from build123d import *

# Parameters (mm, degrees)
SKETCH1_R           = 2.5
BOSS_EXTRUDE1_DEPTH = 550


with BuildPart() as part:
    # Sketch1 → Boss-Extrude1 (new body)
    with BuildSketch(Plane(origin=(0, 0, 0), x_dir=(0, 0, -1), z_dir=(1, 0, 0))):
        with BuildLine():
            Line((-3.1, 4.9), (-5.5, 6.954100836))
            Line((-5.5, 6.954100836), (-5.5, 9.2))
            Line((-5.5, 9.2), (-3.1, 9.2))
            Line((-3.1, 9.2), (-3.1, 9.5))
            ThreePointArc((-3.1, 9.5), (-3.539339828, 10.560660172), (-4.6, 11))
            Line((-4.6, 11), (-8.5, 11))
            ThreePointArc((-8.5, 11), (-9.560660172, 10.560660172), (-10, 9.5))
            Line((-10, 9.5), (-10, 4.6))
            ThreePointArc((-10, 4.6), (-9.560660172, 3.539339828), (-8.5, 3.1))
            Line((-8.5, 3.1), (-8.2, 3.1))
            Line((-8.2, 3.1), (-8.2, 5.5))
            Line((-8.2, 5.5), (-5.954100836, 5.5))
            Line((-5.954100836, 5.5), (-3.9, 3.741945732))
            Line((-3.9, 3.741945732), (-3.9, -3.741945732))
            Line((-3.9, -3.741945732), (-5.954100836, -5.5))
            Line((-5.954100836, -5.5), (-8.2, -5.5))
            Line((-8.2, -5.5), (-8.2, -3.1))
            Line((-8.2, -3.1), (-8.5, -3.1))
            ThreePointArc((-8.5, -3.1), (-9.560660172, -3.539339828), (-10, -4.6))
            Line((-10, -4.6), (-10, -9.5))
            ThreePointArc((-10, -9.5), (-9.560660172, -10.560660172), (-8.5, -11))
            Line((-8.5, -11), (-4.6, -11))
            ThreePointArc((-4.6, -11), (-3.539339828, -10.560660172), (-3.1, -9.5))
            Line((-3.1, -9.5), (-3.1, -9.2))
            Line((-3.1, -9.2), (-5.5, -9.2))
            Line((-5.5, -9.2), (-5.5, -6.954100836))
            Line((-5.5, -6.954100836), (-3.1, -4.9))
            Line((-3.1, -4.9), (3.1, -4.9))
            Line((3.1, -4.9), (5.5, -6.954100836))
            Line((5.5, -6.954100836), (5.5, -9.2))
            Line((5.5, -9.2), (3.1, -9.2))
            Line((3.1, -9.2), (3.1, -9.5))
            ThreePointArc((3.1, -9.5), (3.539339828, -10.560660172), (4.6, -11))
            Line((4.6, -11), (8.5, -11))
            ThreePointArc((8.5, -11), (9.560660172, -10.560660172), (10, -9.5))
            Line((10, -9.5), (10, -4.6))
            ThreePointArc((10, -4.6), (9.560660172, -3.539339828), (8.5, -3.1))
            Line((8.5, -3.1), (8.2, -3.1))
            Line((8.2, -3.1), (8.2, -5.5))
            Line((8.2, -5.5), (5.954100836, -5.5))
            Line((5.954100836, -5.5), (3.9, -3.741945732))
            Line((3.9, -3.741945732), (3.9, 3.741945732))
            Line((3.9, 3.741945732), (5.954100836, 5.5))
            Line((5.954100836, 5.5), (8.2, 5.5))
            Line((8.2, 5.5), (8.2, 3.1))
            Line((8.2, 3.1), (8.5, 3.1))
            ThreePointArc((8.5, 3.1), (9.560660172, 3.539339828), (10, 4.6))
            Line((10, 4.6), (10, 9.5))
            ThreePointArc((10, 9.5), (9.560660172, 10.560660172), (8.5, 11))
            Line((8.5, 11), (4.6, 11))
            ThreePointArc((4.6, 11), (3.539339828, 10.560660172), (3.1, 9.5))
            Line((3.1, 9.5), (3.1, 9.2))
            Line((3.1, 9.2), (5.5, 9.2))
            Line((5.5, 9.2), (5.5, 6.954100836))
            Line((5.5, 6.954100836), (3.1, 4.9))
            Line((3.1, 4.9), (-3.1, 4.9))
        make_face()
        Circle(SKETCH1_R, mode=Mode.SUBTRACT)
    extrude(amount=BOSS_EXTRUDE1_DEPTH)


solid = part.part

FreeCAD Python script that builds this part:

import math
import FreeCAD as App
import Part
import Sketcher

doc = App.newDocument("Part")
body = doc.addObject("PartDesign::Body", "Body")

# Sketch on YZ plane
sketch1 = body.newObject("Sketcher::SketchObject", "Sketch")
sketch1.AttachmentSupport = (doc.getObject("YZ_Plane"), [""])
sketch1.MapMode = "FlatFace"
sketch1.addGeometry(Part.LineSegment(App.Vector(4.9, 3.1, 0), App.Vector(6.95, 5.5, 0)), False)
sketch1.addGeometry(Part.LineSegment(App.Vector(6.95, 5.5, 0), App.Vector(9.2, 5.5, 0)), False)
sketch1.addGeometry(Part.LineSegment(App.Vector(9.2, 5.5, 0), App.Vector(9.2, 3.1, 0)), False)
sketch1.addGeometry(Part.LineSegment(App.Vector(9.2, 3.1, 0), App.Vector(9.5, 3.1, 0)), False)
sketch1.addGeometry(Part.ArcOfCircle(Part.Circle(App.Vector(9.5, 4.6, 0), App.Vector(0, 0, 1), 1.5), math.radians(-90), math.radians(0)), False)
sketch1.addGeometry(Part.LineSegment(App.Vector(11, 4.6, 0), App.Vector(11, 8.5, 0)), False)
sketch1.addGeometry(Part.ArcOfCircle(Part.Circle(App.Vector(9.5, 8.5, 0), App.Vector(0, 0, 1), 1.5), math.radians(0), math.radians(90)), False)
sketch1.addGeometry(Part.LineSegment(App.Vector(9.5, 10, 0), App.Vector(4.6, 10, 0)), False)
sketch1.addGeometry(Part.ArcOfCircle(Part.Circle(App.Vector(4.6, 8.5, 0), App.Vector(0, 0, 1), 1.5), math.radians(90), math.radians(180)), False)
sketch1.addGeometry(Part.LineSegment(App.Vector(3.1, 8.5, 0), App.Vector(3.1, 8.2, 0)), False)
sketch1.addGeometry(Part.LineSegment(App.Vector(3.1, 8.2, 0), App.Vector(5.5, 8.2, 0)), False)
sketch1.addGeometry(Part.LineSegment(App.Vector(5.5, 8.2, 0), App.Vector(5.5, 5.95, 0)), False)
sketch1.addGeometry(Part.LineSegment(App.Vector(5.5, 5.95, 0), App.Vector(3.74, 3.9, 0)), False)
sketch1.addGeometry(Part.LineSegment(App.Vector(3.74, 3.9, 0), App.Vector(-3.74, 3.9, 0)), False)
sketch1.addGeometry(Part.LineSegment(App.Vector(-3.74, 3.9, 0), App.Vector(-5.5, 5.95, 0)), False)
sketch1.addGeometry(Part.LineSegment(App.Vector(-5.5, 5.95, 0), App.Vector(-5.5, 8.2, 0)), False)
sketch1.addGeometry(Part.LineSegment(App.Vector(-5.5, 8.2, 0), App.Vector(-3.1, 8.2, 0)), False)
sketch1.addGeometry(Part.LineSegment(App.Vector(-3.1, 8.2, 0), App.Vector(-3.1, 8.5, 0)), False)
sketch1.addGeometry(Part.ArcOfCircle(Part.Circle(App.Vector(-4.6, 8.5, 0), App.Vector(0, 0, 1), 1.5), math.radians(0), math.radians(90)), False)
sketch1.addGeometry(Part.LineSegment(App.Vector(-4.6, 10, 0), App.Vector(-9.5, 10, 0)), False)
sketch1.addGeometry(Part.ArcOfCircle(Part.Circle(App.Vector(-9.5, 8.5, 0), App.Vector(0, 0, 1), 1.5), math.radians(90), math.radians(180)), False)
sketch1.addGeometry(Part.LineSegment(App.Vector(-11, 8.5, 0), App.Vector(-11, 4.6, 0)), False)
sketch1.addGeometry(Part.ArcOfCircle(Part.Circle(App.Vector(-9.5, 4.6, 0), App.Vector(0, 0, 1), 1.5), math.radians(180), math.radians(270)), False)
sketch1.addGeometry(Part.LineSegment(App.Vector(-9.5, 3.1, 0), App.Vector(-9.2, 3.1, 0)), False)
sketch1.addGeometry(Part.LineSegment(App.Vector(-9.2, 3.1, 0), App.Vector(-9.2, 5.5, 0)), False)
sketch1.addGeometry(Part.LineSegment(App.Vector(-9.2, 5.5, 0), App.Vector(-6.95, 5.5, 0)), False)
sketch1.addGeometry(Part.LineSegment(App.Vector(-6.95, 5.5, 0), App.Vector(-4.9, 3.1, 0)), False)
sketch1.addGeometry(Part.LineSegment(App.Vector(-4.9, 3.1, 0), App.Vector(-4.9, -3.1, 0)), False)
sketch1.addGeometry(Part.LineSegment(App.Vector(-4.9, -3.1, 0), App.Vector(-6.95, -5.5, 0)), False)
sketch1.addGeometry(Part.LineSegment(App.Vector(-6.95, -5.5, 0), App.Vector(-9.2, -5.5, 0)), False)
sketch1.addGeometry(Part.LineSegment(App.Vector(-9.2, -5.5, 0), App.Vector(-9.2, -3.1, 0)), False)
sketch1.addGeometry(Part.LineSegment(App.Vector(-9.2, -3.1, 0), App.Vector(-9.5, -3.1, 0)), False)
sketch1.addGeometry(Part.ArcOfCircle(Part.Circle(App.Vector(-9.5, -4.6, 0), App.Vector(0, 0, 1), 1.5), math.radians(90), math.radians(180)), False)
sketch1.addGeometry(Part.LineSegment(App.Vector(-11, -4.6, 0), App.Vector(-11, -8.5, 0)), False)
sketch1.addGeometry(Part.ArcOfCircle(Part.Circle(App.Vector(-9.5, -8.5, 0), App.Vector(0, 0, 1), 1.5), math.radians(180), math.radians(270)), False)
sketch1.addGeometry(Part.LineSegment(App.Vector(-9.5, -10, 0), App.Vector(-4.6, -10, 0)), False)
sketch1.addGeometry(Part.ArcOfCircle(Part.Circle(App.Vector(-4.6, -8.5, 0), App.Vector(0, 0, 1), 1.5), math.radians(-90), math.radians(0)), False)
sketch1.addGeometry(Part.LineSegment(App.Vector(-3.1, -8.5, 0), App.Vector(-3.1, -8.2, 0)), False)
sketch1.addGeometry(Part.LineSegment(App.Vector(-3.1, -8.2, 0), App.Vector(-5.5, -8.2, 0)), False)
sketch1.addGeometry(Part.LineSegment(App.Vector(-5.5, -8.2, 0), App.Vector(-5.5, -5.95, 0)), False)
sketch1.addGeometry(Part.LineSegment(App.Vector(-5.5, -5.95, 0), App.Vector(-3.74, -3.9, 0)), False)
sketch1.addGeometry(Part.LineSegment(App.Vector(-3.74, -3.9, 0), App.Vector(3.74, -3.9, 0)), False)
sketch1.addGeometry(Part.LineSegment(App.Vector(3.74, -3.9, 0), App.Vector(5.5, -5.95, 0)), False)
sketch1.addGeometry(Part.LineSegment(App.Vector(5.5, -5.95, 0), App.Vector(5.5, -8.2, 0)), False)
sketch1.addGeometry(Part.LineSegment(App.Vector(5.5, -8.2, 0), App.Vector(3.1, -8.2, 0)), False)
sketch1.addGeometry(Part.LineSegment(App.Vector(3.1, -8.2, 0), App.Vector(3.1, -8.5, 0)), False)
sketch1.addGeometry(Part.ArcOfCircle(Part.Circle(App.Vector(4.6, -8.5, 0), App.Vector(0, 0, 1), 1.5), math.radians(180), math.radians(270)), False)
sketch1.addGeometry(Part.LineSegment(App.Vector(4.6, -10, 0), App.Vector(9.5, -10, 0)), False)
sketch1.addGeometry(Part.ArcOfCircle(Part.Circle(App.Vector(9.5, -8.5, 0), App.Vector(0, 0, 1), 1.5), math.radians(-90), math.radians(0)), False)
sketch1.addGeometry(Part.LineSegment(App.Vector(11, -8.5, 0), App.Vector(11, -4.6, 0)), False)
sketch1.addGeometry(Part.ArcOfCircle(Part.Circle(App.Vector(9.5, -4.6, 0), App.Vector(0, 0, 1), 1.5), math.radians(0), math.radians(90)), False)
sketch1.addGeometry(Part.LineSegment(App.Vector(9.5, -3.1, 0), App.Vector(9.2, -3.1, 0)), False)
sketch1.addGeometry(Part.LineSegment(App.Vector(9.2, -3.1, 0), App.Vector(9.2, -5.5, 0)), False)
sketch1.addGeometry(Part.LineSegment(App.Vector(9.2, -5.5, 0), App.Vector(6.95, -5.5, 0)), False)
sketch1.addGeometry(Part.LineSegment(App.Vector(6.95, -5.5, 0), App.Vector(4.9, -3.1, 0)), False)
sketch1.addGeometry(Part.LineSegment(App.Vector(4.9, -3.1, 0), App.Vector(4.9, 3.1, 0)), False)
sketch1.addGeometry(Part.Circle(App.Vector(0, 0, 0), App.Vector(0, 0, 1), 2.5), False)
sketch1.addConstraint(Sketcher.Constraint("Coincident", 0, 2, 1, 1))
sketch1.addConstraint(Sketcher.Constraint("Coincident", 1, 2, 2, 1))
sketch1.addConstraint(Sketcher.Constraint("Coincident", 2, 2, 3, 1))
sketch1.addConstraint(Sketcher.Constraint("Tangent", 3, 2, 4, 1))
sketch1.addConstraint(Sketcher.Constraint("Tangent", 4, 2, 5, 1))
sketch1.addConstraint(Sketcher.Constraint("Tangent", 5, 2, 6, 1))
sketch1.addConstraint(Sketcher.Constraint("Tangent", 6, 2, 7, 1))
sketch1.addConstraint(Sketcher.Constraint("Tangent", 7, 2, 8, 1))
sketch1.addConstraint(Sketcher.Constraint("Tangent", 8, 2, 9, 1))
sketch1.addConstraint(Sketcher.Constraint("Coincident", 9, 2, 10, 1))
sketch1.addConstraint(Sketcher.Constraint("Coincident", 10, 2, 11, 1))
sketch1.addConstraint(Sketcher.Constraint("Coincident", 11, 2, 12, 1))
sketch1.addConstraint(Sketcher.Constraint("Coincident", 12, 2, 13, 1))
sketch1.addConstraint(Sketcher.Constraint("Coincident", 13, 2, 14, 1))
sketch1.addConstraint(Sketcher.Constraint("Coincident", 14, 2, 15, 1))
sketch1.addConstraint(Sketcher.Constraint("Coincident", 15, 2, 16, 1))
sketch1.addConstraint(Sketcher.Constraint("Coincident", 16, 2, 17, 1))
sketch1.addConstraint(Sketcher.Constraint("Tangent", 17, 2, 18, 1))
sketch1.addConstraint(Sketcher.Constraint("Tangent", 18, 2, 19, 1))
sketch1.addConstraint(Sketcher.Constraint("Tangent", 19, 2, 20, 1))
sketch1.addConstraint(Sketcher.Constraint("Tangent", 20, 2, 21, 1))
sketch1.addConstraint(Sketcher.Constraint("Tangent", 21, 2, 22, 1))
sketch1.addConstraint(Sketcher.Constraint("Tangent", 22, 2, 23, 1))
sketch1.addConstraint(Sketcher.Constraint("Coincident", 23, 2, 24, 1))
sketch1.addConstraint(Sketcher.Constraint("Coincident", 24, 2, 25, 1))
sketch1.addConstraint(Sketcher.Constraint("Coincident", 25, 2, 26, 1))
sketch1.addConstraint(Sketcher.Constraint("Coincident", 26, 2, 27, 1))
sketch1.addConstraint(Sketcher.Constraint("Coincident", 27, 2, 28, 1))
sketch1.addConstraint(Sketcher.Constraint("Coincident", 28, 2, 29, 1))
sketch1.addConstraint(Sketcher.Constraint("Coincident", 29, 2, 30, 1))
sketch1.addConstraint(Sketcher.Constraint("Coincident", 30, 2, 31, 1))
sketch1.addConstraint(Sketcher.Constraint("Tangent", 31, 2, 32, 1))
sketch1.addConstraint(Sketcher.Constraint("Tangent", 32, 2, 33, 1))
sketch1.addConstraint(Sketcher.Constraint("Tangent", 33, 2, 34, 1))
sketch1.addConstraint(Sketcher.Constraint("Tangent", 34, 2, 35, 1))
sketch1.addConstraint(Sketcher.Constraint("Tangent", 35, 2, 36, 1))
sketch1.addConstraint(Sketcher.Constraint("Tangent", 36, 2, 37, 1))
sketch1.addConstraint(Sketcher.Constraint("Coincident", 37, 2, 38, 1))
sketch1.addConstraint(Sketcher.Constraint("Coincident", 38, 2, 39, 1))
sketch1.addConstraint(Sketcher.Constraint("Coincident", 39, 2, 40, 1))
sketch1.addConstraint(Sketcher.Constraint("Coincident", 40, 2, 41, 1))
sketch1.addConstraint(Sketcher.Constraint("Coincident", 41, 2, 42, 1))
sketch1.addConstraint(Sketcher.Constraint("Coincident", 42, 2, 43, 1))
sketch1.addConstraint(Sketcher.Constraint("Coincident", 43, 2, 44, 1))
sketch1.addConstraint(Sketcher.Constraint("Coincident", 44, 2, 45, 1))
sketch1.addConstraint(Sketcher.Constraint("Tangent", 45, 2, 46, 1))
sketch1.addConstraint(Sketcher.Constraint("Tangent", 46, 2, 47, 1))
sketch1.addConstraint(Sketcher.Constraint("Tangent", 47, 2, 48, 1))
sketch1.addConstraint(Sketcher.Constraint("Tangent", 48, 2, 49, 1))
sketch1.addConstraint(Sketcher.Constraint("Tangent", 49, 2, 50, 1))
sketch1.addConstraint(Sketcher.Constraint("Tangent", 50, 2, 51, 1))
sketch1.addConstraint(Sketcher.Constraint("Coincident", 51, 2, 52, 1))
sketch1.addConstraint(Sketcher.Constraint("Coincident", 52, 2, 53, 1))
sketch1.addConstraint(Sketcher.Constraint("Coincident", 53, 2, 54, 1))
sketch1.addConstraint(Sketcher.Constraint("Coincident", 54, 2, 55, 1))
sketch1.addConstraint(Sketcher.Constraint("Coincident", 55, 2, 0, 1))
sketch1.addConstraint(Sketcher.Constraint("Horizontal", 1))
sketch1.addConstraint(Sketcher.Constraint("Vertical", 2))
sketch1.addConstraint(Sketcher.Constraint("Horizontal", 3))
sketch1.addConstraint(Sketcher.Constraint("Vertical", 5))
sketch1.addConstraint(Sketcher.Constraint("Horizontal", 7))
sketch1.addConstraint(Sketcher.Constraint("Vertical", 9))
sketch1.addConstraint(Sketcher.Constraint("Horizontal", 10))
sketch1.addConstraint(Sketcher.Constraint("Vertical", 11))
sketch1.addConstraint(Sketcher.Constraint("Horizontal", 13))
sketch1.addConstraint(Sketcher.Constraint("Vertical", 15))
sketch1.addConstraint(Sketcher.Constraint("Horizontal", 16))
sketch1.addConstraint(Sketcher.Constraint("Vertical", 17))
sketch1.addConstraint(Sketcher.Constraint("Horizontal", 19))
sketch1.addConstraint(Sketcher.Constraint("Vertical", 21))
sketch1.addConstraint(Sketcher.Constraint("Horizontal", 23))
sketch1.addConstraint(Sketcher.Constraint("Vertical", 24))
sketch1.addConstraint(Sketcher.Constraint("Horizontal", 25))
sketch1.addConstraint(Sketcher.Constraint("Vertical", 27))
sketch1.addConstraint(Sketcher.Constraint("Horizontal", 29))
sketch1.addConstraint(Sketcher.Constraint("Vertical", 30))
sketch1.addConstraint(Sketcher.Constraint("Horizontal", 31))
sketch1.addConstraint(Sketcher.Constraint("Vertical", 33))
sketch1.addConstraint(Sketcher.Constraint("Horizontal", 35))
sketch1.addConstraint(Sketcher.Constraint("Vertical", 37))
sketch1.addConstraint(Sketcher.Constraint("Horizontal", 38))
sketch1.addConstraint(Sketcher.Constraint("Vertical", 39))
sketch1.addConstraint(Sketcher.Constraint("Horizontal", 41))
sketch1.addConstraint(Sketcher.Constraint("Vertical", 43))
sketch1.addConstraint(Sketcher.Constraint("Horizontal", 44))
sketch1.addConstraint(Sketcher.Constraint("Vertical", 45))
sketch1.addConstraint(Sketcher.Constraint("Horizontal", 47))
sketch1.addConstraint(Sketcher.Constraint("Vertical", 49))
sketch1.addConstraint(Sketcher.Constraint("Horizontal", 51))
sketch1.addConstraint(Sketcher.Constraint("Vertical", 52))
sketch1.addConstraint(Sketcher.Constraint("Horizontal", 53))
sketch1.addConstraint(Sketcher.Constraint("Vertical", 55))
sketch1.addConstraint(Sketcher.Constraint("Coincident", 56, 3, -1, 1))
sketch1.addConstraint(Sketcher.Constraint("Equal", 4, 6))
sketch1.addConstraint(Sketcher.Constraint("Equal", 6, 8))
sketch1.addConstraint(Sketcher.Constraint("Equal", 8, 18))
sketch1.addConstraint(Sketcher.Constraint("Equal", 18, 20))
sketch1.addConstraint(Sketcher.Constraint("Equal", 20, 22))
sketch1.addConstraint(Sketcher.Constraint("Equal", 22, 32))
sketch1.addConstraint(Sketcher.Constraint("Equal", 32, 34))
sketch1.addConstraint(Sketcher.Constraint("Equal", 34, 36))
sketch1.addConstraint(Sketcher.Constraint("Equal", 36, 46))
sketch1.addConstraint(Sketcher.Constraint("Equal", 46, 48))
sketch1.addConstraint(Sketcher.Constraint("Equal", 48, 50))
sketch1.addConstraint(Sketcher.Constraint("Symmetric", 4, 3, 32, 3, -1, 1))
sketch1.addConstraint(Sketcher.Constraint("Symmetric", 8, 3, 36, 3, -1, 1))
sketch1.addConstraint(Sketcher.Constraint("Symmetric", 18, 3, 46, 3, -1, 1))
sketch1.addConstraint(Sketcher.Constraint("Symmetric", 22, 3, 50, 3, -1, 1))
sketch1.addConstraint(Sketcher.Constraint("Symmetric", 0, 2, 28, 2, -1, 1))
sketch1.addConstraint(Sketcher.Constraint("Symmetric", 10, 2, 38, 2, -1, 1))
sketch1.addConstraint(Sketcher.Constraint("Symmetric", 12, 2, 40, 2, -1, 1))
sketch1.addConstraint(Sketcher.Constraint("Symmetric", 14, 2, 42, 2, -1, 1))
sketch1.addConstraint(Sketcher.Constraint("Symmetric", 24, 2, 52, 2, -1, 1))
sketch1.addConstraint(Sketcher.Constraint("Symmetric", 26, 2, 54, 2, -1, 1))
sketch1.addConstraint(Sketcher.Constraint("Symmetric", 8, 3, 18, 3, -2))
sketch1.addConstraint(Sketcher.Constraint("Symmetric", 4, 3, 22, 3, -2))
sketch1.addConstraint(Sketcher.Constraint("Symmetric", 11, 2, 14, 2, -2))
sketch1.addConstraint(Sketcher.Constraint("Symmetric", 1, 2, 24, 2, -2))
sketch1.addConstraint(Sketcher.Constraint("Parallel", 0, 12))
sketch1.addConstraint(Sketcher.Constraint("Parallel", 14, 26))
sketch1.addConstraint(Sketcher.Constraint("Parallel", 12, 28))
sketch1.addConstraint(Sketcher.Constraint("Parallel", 28, 40))
sketch1.addConstraint(Sketcher.Constraint("Parallel", 26, 42))
sketch1.addConstraint(Sketcher.Constraint("Parallel", 42, 54))
sketch1.addConstraint(Sketcher.Constraint("Horizontal", 10, 2, 15, 2))
sketch1.addConstraint(Sketcher.Constraint("Horizontal", 23, 2, 26, 2))
sketch1.addConstraint(Sketcher.Constraint("Horizontal", 27, 2, 30, 2))
sketch1.addConstraint(Sketcher.Constraint("Horizontal", 38, 2, 43, 2))
sketch1.addConstraint(Sketcher.Constraint("Vertical", 25, 2, 28, 2))
sketch1.addConstraint(Sketcher.Constraint("Vertical", 24, 2, 29, 2))
sketch1.addConstraint(Sketcher.Constraint("Equal", 44, 2))
sketch1.addConstraint(Sketcher.Constraint("Equal", 51, 9))
sketch1.addConstraint(Sketcher.Constraint("Equal", 53, 11))
sketch1.addConstraint(Sketcher.Constraint("Diameter", 56, 5.0))
sketch1.addConstraint(Sketcher.Constraint("Radius", 4, 1.5))
sketch1.addConstraint(Sketcher.Constraint("DistanceX", 3, 1, 3, 2, 0.3))
sketch1.addConstraint(Sketcher.Constraint("DistanceX", 7, 2, 7, 1, 4.9))
sketch1.addConstraint(Sketcher.Constraint("DistanceX", 10, 1, 10, 2, 2.4))
sketch1.addConstraint(Sketcher.Constraint("DistanceY", 5, 1, 5, 2, 3.9))
sketch1.addConstraint(Sketcher.Constraint("DistanceY", 27, 2, 27, 1, 6.2))
sketch1.addConstraint(Sketcher.Constraint("DistanceX", -1, 1, 4, 2, 11.0))
sketch1.addConstraint(Sketcher.Constraint("DistanceY", -1, 1, 12, 2, 3.9))
sketch1.addConstraint(Sketcher.Constraint("DistanceX", 26, 2, -1, 1, 4.9))
sketch1.addConstraint(Sketcher.Constraint("DistanceX", 1, 1, 1, 2, 2.245899))
pad1 = body.newObject("PartDesign::Pad", "Pad")
pad1.Profile = sketch1
pad1.Length = 550

doc.recompute()
